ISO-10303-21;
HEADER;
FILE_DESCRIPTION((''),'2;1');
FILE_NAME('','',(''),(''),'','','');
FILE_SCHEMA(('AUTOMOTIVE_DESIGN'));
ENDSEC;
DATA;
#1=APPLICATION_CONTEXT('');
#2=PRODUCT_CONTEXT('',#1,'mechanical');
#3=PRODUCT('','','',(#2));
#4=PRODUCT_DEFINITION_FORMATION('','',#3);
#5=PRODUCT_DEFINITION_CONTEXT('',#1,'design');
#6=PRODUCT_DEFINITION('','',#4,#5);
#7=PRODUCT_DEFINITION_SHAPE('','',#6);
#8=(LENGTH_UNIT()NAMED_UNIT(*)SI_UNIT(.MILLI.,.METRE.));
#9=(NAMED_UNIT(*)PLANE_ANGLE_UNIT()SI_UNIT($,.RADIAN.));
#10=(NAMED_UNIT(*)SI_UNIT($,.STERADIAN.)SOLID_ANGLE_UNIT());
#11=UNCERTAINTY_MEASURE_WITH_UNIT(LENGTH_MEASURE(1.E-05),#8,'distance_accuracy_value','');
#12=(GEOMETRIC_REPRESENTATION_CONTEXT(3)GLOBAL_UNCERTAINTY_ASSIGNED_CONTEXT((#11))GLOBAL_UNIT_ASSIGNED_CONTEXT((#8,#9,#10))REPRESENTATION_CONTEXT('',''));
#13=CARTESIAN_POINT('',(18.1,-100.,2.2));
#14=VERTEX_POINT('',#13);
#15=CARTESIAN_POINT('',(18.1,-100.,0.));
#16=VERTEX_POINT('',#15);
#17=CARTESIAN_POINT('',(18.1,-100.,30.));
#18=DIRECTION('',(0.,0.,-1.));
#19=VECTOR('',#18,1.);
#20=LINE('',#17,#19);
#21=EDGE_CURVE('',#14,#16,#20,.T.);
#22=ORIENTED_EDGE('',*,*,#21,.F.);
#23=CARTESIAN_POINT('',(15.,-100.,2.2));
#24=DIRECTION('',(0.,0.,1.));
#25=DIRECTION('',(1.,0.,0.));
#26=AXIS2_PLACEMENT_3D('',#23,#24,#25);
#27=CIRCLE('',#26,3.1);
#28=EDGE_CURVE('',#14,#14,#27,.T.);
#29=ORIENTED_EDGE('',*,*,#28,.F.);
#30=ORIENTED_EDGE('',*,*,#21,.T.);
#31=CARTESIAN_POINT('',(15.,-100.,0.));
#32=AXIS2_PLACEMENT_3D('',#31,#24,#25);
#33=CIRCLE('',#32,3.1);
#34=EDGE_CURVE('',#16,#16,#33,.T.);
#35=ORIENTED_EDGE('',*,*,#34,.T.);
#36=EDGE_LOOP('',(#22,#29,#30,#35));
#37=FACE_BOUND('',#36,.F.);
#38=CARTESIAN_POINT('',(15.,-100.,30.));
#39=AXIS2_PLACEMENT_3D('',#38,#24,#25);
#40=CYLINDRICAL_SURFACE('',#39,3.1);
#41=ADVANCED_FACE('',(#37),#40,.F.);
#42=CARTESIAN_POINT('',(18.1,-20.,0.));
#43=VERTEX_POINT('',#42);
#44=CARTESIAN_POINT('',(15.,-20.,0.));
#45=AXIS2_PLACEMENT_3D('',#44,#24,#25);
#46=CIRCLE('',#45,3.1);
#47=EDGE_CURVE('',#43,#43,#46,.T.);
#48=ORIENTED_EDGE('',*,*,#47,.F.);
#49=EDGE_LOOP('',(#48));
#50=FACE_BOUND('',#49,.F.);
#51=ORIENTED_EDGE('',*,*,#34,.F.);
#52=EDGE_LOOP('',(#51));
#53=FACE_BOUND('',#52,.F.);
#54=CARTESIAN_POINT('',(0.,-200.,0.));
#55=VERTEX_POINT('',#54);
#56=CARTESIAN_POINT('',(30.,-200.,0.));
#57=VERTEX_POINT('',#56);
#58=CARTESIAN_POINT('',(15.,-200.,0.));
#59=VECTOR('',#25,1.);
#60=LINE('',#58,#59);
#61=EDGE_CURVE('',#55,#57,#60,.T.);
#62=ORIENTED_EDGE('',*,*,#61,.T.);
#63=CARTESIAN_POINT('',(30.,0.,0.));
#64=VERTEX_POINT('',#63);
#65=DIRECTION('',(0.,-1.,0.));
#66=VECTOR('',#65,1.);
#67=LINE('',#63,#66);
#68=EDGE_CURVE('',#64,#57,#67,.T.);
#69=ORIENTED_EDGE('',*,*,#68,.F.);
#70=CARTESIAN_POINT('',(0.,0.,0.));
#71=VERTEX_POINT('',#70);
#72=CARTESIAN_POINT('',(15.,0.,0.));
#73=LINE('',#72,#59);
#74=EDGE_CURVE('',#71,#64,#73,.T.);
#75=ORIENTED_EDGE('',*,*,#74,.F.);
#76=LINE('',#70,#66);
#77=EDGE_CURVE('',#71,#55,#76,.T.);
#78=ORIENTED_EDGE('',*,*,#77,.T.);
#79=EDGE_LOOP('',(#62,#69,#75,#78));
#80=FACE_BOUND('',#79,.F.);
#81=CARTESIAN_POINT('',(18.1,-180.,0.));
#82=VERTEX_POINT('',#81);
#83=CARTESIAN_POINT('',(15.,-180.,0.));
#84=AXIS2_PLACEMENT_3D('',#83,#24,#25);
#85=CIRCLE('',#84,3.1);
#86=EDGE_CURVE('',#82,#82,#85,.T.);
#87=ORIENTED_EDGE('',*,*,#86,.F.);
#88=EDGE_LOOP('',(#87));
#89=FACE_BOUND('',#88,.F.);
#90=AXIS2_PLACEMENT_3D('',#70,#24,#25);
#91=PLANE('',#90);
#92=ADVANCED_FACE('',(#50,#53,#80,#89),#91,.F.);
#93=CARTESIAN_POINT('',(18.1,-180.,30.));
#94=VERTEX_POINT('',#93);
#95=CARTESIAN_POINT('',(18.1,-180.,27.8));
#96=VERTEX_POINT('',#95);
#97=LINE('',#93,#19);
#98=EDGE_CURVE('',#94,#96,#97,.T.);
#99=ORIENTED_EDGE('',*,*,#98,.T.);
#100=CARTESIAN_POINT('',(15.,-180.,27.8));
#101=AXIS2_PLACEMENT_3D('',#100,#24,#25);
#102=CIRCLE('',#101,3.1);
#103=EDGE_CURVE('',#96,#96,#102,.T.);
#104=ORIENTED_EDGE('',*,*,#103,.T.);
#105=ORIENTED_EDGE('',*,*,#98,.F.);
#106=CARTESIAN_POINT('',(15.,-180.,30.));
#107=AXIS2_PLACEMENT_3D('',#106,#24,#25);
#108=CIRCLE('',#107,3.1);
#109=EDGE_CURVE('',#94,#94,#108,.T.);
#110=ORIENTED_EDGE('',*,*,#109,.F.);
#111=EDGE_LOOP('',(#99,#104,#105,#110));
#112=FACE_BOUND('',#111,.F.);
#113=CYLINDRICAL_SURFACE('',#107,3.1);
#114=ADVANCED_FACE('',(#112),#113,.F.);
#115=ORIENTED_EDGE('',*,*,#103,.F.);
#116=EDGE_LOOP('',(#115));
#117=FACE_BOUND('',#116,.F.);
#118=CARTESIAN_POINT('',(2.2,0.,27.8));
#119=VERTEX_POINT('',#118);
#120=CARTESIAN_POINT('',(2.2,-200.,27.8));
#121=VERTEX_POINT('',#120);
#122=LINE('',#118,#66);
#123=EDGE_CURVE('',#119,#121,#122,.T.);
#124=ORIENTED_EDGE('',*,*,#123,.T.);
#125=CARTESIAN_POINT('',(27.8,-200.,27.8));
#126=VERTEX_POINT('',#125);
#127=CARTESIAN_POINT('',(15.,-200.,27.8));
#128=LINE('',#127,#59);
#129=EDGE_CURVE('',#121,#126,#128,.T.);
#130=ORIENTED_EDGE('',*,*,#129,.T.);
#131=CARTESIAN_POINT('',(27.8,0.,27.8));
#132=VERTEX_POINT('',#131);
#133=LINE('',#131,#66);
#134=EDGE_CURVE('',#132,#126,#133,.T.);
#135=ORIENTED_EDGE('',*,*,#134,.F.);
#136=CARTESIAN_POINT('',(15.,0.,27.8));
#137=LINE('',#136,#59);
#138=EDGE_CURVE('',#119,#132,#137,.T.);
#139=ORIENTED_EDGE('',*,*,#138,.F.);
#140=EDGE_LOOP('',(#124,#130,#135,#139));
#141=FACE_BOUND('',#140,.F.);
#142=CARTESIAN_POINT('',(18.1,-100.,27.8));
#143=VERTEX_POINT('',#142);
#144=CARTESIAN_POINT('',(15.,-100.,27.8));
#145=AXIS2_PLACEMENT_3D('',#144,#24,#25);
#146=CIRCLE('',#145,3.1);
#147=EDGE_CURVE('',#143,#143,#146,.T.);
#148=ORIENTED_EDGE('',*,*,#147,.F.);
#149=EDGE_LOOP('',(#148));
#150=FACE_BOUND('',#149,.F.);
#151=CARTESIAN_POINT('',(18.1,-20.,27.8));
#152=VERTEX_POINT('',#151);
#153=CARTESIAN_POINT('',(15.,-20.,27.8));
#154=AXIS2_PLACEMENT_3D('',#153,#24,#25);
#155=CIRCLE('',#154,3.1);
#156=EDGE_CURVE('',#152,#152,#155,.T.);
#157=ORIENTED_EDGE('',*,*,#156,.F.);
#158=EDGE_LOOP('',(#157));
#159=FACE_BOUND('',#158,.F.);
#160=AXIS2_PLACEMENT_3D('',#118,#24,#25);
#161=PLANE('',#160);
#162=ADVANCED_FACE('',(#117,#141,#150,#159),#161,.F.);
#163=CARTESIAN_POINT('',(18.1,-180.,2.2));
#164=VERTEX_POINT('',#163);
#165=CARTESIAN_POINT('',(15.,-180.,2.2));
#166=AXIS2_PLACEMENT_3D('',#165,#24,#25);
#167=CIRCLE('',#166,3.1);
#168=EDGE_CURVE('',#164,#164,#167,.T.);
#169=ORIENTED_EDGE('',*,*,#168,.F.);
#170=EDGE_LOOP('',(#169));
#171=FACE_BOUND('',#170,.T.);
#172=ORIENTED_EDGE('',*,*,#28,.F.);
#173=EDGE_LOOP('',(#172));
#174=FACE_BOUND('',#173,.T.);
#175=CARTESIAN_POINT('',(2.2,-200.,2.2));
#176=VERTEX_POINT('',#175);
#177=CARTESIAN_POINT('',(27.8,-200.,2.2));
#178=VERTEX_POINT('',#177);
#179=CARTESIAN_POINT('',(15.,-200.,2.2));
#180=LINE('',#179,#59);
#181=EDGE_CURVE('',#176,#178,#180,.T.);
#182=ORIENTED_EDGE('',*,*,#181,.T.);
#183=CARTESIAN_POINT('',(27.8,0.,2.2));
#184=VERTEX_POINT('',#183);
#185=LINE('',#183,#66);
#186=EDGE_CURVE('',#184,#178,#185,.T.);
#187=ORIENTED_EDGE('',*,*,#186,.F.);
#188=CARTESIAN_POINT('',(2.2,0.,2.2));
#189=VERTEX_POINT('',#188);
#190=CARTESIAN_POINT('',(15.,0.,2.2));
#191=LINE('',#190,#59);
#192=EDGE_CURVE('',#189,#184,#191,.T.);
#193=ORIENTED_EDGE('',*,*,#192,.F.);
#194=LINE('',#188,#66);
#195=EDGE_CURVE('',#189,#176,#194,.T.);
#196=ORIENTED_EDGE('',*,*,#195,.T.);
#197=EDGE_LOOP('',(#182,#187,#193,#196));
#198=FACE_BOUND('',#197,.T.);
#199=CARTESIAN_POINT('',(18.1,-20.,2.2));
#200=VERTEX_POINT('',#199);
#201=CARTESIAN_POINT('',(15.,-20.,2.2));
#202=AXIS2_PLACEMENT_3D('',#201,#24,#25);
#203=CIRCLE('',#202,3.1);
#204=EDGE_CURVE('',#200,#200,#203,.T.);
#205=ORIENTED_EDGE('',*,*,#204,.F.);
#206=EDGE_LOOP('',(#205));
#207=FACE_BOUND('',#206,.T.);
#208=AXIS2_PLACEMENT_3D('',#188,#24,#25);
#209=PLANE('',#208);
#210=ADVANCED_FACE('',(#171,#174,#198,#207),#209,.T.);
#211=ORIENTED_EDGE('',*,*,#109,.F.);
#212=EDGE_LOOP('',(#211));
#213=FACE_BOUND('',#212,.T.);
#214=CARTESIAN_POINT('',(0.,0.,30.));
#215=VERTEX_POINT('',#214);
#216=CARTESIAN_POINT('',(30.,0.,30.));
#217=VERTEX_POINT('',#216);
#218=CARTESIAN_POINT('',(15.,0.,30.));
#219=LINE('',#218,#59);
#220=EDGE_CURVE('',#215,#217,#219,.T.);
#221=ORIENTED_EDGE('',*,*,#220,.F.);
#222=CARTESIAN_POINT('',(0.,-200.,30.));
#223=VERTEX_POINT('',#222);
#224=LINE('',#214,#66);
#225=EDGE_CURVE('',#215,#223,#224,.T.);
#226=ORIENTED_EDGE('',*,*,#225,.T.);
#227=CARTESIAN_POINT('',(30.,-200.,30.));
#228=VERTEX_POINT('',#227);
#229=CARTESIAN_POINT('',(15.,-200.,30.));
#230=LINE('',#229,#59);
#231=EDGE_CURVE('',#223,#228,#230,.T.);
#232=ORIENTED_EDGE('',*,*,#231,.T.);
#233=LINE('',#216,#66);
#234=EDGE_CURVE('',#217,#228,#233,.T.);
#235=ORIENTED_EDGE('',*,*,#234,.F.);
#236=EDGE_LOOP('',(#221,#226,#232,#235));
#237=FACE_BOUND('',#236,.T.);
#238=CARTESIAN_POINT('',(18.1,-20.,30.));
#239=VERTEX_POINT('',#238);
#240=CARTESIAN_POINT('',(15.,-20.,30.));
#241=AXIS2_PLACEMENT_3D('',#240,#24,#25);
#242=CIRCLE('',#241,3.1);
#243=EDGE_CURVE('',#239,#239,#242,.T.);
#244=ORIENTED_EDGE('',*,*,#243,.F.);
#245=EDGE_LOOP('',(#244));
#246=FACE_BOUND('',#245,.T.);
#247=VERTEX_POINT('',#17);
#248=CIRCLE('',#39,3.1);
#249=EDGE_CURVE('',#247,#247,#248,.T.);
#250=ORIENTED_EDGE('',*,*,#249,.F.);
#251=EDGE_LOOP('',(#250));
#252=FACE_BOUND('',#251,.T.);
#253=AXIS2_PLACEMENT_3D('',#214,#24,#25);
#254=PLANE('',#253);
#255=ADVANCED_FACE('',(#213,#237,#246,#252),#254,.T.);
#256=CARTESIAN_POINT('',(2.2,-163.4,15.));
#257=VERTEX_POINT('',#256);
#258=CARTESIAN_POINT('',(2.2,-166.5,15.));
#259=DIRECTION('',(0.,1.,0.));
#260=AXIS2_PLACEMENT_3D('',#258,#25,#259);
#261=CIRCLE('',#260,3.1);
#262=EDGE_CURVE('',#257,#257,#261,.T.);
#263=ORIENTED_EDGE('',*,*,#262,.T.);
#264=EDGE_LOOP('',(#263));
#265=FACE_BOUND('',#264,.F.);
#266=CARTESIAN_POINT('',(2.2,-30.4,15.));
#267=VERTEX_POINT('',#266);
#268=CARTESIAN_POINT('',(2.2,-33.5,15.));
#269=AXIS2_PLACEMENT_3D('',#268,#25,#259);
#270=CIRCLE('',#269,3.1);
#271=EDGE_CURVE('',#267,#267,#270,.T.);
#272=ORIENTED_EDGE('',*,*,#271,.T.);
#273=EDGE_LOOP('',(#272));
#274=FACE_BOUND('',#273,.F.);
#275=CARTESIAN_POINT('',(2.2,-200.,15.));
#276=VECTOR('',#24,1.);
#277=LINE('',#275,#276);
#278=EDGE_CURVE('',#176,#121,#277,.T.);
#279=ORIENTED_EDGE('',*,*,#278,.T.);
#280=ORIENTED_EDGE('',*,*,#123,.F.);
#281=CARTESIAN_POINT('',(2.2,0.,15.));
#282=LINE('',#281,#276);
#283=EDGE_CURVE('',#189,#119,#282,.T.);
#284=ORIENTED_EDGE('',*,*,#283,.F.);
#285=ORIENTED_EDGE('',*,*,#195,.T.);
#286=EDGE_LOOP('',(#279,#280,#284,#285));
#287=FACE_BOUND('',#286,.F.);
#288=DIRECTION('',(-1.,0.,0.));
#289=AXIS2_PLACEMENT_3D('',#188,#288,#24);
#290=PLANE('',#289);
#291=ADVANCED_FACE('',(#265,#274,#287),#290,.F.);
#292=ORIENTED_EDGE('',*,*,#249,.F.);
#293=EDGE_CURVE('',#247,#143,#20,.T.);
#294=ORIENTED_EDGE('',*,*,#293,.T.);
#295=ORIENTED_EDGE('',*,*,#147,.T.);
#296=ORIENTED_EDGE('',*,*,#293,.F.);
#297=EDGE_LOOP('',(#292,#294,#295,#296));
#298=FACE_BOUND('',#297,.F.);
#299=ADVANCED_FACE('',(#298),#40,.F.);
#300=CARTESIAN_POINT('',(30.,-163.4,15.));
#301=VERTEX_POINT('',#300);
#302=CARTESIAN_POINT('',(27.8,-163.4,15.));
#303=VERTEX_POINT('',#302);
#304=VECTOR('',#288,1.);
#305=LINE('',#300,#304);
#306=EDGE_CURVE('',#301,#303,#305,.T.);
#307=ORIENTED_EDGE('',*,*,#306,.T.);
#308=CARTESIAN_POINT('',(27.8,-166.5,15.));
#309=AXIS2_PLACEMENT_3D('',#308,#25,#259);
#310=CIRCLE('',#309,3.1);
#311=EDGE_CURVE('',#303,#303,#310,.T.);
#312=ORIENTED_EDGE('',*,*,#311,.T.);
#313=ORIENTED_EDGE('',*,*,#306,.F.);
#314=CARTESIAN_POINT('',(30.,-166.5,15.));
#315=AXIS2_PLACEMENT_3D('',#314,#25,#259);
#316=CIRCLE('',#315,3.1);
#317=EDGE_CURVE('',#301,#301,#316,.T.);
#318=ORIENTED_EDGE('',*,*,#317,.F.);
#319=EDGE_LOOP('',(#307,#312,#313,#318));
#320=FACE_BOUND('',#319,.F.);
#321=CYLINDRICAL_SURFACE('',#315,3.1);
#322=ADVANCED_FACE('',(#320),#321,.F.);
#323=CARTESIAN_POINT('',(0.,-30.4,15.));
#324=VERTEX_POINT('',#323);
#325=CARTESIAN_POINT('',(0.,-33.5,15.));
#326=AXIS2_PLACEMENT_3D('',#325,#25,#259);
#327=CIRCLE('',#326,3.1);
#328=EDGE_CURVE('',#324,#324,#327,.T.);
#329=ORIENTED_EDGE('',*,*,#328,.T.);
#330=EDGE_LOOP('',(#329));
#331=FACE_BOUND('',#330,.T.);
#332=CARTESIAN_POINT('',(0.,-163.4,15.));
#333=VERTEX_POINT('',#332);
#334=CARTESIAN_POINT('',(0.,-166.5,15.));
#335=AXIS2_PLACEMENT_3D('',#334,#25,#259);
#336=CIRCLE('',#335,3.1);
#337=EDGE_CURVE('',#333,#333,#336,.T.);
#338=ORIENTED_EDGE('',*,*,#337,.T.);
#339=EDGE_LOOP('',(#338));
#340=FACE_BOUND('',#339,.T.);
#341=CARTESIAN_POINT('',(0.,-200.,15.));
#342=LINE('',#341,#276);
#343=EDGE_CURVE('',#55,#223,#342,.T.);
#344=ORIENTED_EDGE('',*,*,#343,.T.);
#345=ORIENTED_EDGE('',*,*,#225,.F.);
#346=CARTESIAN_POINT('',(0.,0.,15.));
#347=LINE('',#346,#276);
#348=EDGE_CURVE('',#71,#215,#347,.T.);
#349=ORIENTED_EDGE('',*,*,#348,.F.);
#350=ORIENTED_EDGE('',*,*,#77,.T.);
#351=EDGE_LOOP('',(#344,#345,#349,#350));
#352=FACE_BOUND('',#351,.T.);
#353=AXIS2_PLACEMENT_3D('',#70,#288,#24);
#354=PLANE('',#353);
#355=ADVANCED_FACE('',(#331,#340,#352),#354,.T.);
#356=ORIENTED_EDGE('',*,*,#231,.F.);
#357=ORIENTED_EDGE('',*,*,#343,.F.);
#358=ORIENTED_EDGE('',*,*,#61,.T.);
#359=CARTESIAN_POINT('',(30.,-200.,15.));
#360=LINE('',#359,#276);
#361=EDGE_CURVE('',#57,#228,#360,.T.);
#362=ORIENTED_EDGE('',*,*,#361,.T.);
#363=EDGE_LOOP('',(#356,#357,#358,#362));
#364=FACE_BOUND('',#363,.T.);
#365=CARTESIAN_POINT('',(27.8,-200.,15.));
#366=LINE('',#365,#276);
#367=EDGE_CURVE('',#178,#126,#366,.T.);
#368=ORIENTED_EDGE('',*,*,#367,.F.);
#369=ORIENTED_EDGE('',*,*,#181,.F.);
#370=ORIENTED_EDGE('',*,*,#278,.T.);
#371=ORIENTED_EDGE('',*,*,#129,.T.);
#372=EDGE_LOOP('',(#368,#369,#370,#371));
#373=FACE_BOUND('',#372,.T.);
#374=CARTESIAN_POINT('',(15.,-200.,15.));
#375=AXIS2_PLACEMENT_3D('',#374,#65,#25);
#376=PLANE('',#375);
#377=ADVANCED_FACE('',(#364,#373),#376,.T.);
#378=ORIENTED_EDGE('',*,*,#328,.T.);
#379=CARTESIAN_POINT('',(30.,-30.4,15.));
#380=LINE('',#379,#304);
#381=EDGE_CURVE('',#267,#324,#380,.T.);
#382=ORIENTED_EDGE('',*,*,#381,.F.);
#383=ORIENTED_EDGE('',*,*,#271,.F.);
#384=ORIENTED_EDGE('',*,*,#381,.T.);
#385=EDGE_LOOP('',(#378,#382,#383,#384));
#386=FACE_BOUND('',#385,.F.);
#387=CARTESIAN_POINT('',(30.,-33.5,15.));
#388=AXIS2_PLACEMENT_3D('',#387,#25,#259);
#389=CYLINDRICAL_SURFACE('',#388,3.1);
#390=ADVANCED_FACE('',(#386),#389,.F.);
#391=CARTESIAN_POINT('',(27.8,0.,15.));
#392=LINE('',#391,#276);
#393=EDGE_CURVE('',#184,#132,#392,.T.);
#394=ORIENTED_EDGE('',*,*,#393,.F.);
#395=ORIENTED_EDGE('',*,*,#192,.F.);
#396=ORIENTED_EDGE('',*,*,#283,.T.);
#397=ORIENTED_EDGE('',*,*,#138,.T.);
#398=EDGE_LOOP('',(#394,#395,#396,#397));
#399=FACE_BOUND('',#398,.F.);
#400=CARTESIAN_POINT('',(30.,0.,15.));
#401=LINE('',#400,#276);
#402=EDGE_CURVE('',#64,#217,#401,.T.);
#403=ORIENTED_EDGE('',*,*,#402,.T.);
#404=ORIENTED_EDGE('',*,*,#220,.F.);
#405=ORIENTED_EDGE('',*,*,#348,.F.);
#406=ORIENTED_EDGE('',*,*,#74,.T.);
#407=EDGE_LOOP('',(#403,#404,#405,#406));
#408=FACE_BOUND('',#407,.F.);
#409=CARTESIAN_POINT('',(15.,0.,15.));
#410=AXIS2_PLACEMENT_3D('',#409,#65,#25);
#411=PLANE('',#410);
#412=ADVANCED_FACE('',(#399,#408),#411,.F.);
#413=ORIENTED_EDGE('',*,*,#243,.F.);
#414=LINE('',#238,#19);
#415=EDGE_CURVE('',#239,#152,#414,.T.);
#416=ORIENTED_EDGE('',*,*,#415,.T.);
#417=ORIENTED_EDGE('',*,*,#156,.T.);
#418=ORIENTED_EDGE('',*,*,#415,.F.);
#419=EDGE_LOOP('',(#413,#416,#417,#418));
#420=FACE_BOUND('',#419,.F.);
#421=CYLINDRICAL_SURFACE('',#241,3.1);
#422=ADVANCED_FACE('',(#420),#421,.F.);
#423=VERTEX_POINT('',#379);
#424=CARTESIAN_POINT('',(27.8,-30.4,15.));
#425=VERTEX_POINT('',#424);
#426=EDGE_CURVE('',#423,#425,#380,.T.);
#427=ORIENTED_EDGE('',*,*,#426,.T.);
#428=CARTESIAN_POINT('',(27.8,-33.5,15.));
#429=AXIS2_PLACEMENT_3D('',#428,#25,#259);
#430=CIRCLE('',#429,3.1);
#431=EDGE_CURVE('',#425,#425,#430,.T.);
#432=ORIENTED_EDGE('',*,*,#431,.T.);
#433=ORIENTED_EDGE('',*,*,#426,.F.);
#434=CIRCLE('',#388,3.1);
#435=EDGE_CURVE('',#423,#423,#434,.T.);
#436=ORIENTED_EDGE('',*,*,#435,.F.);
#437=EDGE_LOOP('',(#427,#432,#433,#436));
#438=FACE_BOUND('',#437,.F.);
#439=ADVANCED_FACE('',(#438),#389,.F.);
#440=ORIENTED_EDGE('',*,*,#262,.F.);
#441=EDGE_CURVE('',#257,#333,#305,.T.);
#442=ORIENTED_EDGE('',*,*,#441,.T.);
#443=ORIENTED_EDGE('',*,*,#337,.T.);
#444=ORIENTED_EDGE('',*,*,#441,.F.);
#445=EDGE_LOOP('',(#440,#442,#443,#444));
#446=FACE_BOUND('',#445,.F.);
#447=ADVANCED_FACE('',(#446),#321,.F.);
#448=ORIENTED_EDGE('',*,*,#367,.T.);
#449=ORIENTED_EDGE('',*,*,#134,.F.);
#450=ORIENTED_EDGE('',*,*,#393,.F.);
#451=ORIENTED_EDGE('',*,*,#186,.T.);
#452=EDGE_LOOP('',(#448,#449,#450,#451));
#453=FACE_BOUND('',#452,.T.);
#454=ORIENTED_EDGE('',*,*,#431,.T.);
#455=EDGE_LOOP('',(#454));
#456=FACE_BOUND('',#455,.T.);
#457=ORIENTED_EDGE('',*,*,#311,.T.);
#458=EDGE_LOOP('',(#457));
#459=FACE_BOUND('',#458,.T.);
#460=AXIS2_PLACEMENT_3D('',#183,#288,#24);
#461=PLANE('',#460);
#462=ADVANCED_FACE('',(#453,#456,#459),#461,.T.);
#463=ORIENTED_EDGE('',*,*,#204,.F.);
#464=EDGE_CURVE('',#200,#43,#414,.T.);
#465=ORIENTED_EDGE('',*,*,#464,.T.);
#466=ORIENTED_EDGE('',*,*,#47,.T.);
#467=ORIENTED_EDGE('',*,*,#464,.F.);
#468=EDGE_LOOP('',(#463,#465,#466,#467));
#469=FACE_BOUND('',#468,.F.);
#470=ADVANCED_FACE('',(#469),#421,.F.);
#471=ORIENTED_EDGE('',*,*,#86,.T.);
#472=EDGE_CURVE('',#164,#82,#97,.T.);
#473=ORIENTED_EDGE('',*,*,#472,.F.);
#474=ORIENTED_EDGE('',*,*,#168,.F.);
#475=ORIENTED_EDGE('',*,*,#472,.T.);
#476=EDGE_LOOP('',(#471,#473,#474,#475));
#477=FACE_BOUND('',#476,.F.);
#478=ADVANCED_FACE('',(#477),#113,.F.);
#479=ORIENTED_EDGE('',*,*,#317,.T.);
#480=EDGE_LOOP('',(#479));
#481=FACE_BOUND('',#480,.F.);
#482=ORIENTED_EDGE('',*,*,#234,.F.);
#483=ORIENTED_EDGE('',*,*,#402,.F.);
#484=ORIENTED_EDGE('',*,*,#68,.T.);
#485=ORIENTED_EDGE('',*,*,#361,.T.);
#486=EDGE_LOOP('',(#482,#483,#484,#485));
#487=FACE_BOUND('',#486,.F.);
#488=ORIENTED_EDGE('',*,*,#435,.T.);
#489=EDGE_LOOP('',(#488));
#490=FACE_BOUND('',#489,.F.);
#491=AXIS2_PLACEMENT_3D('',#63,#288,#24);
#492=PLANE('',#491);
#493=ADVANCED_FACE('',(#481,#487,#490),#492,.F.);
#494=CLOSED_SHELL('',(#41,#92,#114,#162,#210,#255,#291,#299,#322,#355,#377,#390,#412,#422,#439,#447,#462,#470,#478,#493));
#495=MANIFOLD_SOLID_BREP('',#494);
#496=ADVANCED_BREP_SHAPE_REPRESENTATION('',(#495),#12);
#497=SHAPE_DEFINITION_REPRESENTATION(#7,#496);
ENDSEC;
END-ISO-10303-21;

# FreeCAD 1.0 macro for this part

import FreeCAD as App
import Part
import Sketcher

V = App.Vector
Q = App.Units.Quantity


def add_polygon(sketch, points):
    """Adds a closed chain of lines whose ends are joined by coincident constraints."""
    first, n = sketch.GeometryCount, len(points)
    for a, b in zip(points, points[1:] + points[:1]):
        sketch.addGeometry(Part.LineSegment(App.Vector(*a, 0), App.Vector(*b, 0)), False)
    for i in range(n):
        sketch.addConstraint(Sketcher.Constraint("Coincident", first + i, 2, first + (i + 1) % n, 1))

doc = App.newDocument("Part")
body = doc.addObject("PartDesign::Body", "Body")

# Sketch on XZ plane
sketch1 = doc.addObject("Sketcher::SketchObject", "Sketch")
body.addObject(sketch1)
sketch1.AttachmentSupport = (doc.XZ_Plane, [""])
sketch1.MapMode = "FlatFace"
add_polygon(sketch1, [(0, 30), (0, 0), (30, 0), (30, 30)])  # lines 0-3
add_polygon(sketch1, [(27.8, 2.2), (2.2, 2.2), (2.2, 27.8), (27.8, 27.8)])  # lines 4-7
sketch1.addConstraint([
    Sketcher.Constraint("Vertical", 0),
    Sketcher.Constraint("Horizontal", 1),
    Sketcher.Constraint("Vertical", 2),
    Sketcher.Constraint("Horizontal", 3),
    Sketcher.Constraint("Horizontal", 4),
    Sketcher.Constraint("Vertical", 5),
    Sketcher.Constraint("Horizontal", 6),
    Sketcher.Constraint("Vertical", 7),
    Sketcher.Constraint("Coincident", 0, 2, -1, 1),
    Sketcher.Constraint("Equal", 3, 0),
    Sketcher.Constraint("Equal", 6, 5),
    Sketcher.Constraint("DistanceX", 1, 1, 1, 2, Q("30 mm")),
    Sketcher.Constraint("DistanceX", 4, 2, 4, 1, Q("25.6 mm")),
    Sketcher.Constraint("DistanceX", -1, 1, 4, 2, Q("2.2 mm")),
    Sketcher.Constraint("DistanceY", -1, 1, 4, 2, Q("2.2 mm")),
])
pad1 = doc.addObject("PartDesign::Pad", "Pad")
body.addObject(pad1)
pad1.Profile = sketch1
pad1.Length = 200

# Sketch on XY plane
sketch2 = doc.addObject("Sketcher::SketchObject", "Sketch001")
body.addObject(sketch2)
sketch2.AttachmentSupport = (doc.XY_Plane, [""])
sketch2.MapMode = "FlatFace"
sketch2.AttachmentOffset = App.Placement(V(0, 0, 30), App.Rotation())
sketch2.addGeometry([
    Part.Circle(V(15, -20, 0), V(0, 0, 1), 3.1),
    Part.Circle(V(15, -100, 0), V(0, 0, 1), 3.1),
    Part.Circle(V(15, -180, 0), V(0, 0, 1), 3.1),
], False)
sketch2.addConstraint([
    Sketcher.Constraint("Equal", 0, 1),
    Sketcher.Constraint("Equal", 1, 2),
    Sketcher.Constraint("Vertical", 0, 3, 1, 3),
    Sketcher.Constraint("Vertical", 1, 3, 2, 3),
    Sketcher.Constraint("Diameter", 0, Q("6.2 mm")),
    Sketcher.Constraint("DistanceX", -1, 1, 0, 3, Q("15 mm")),
    Sketcher.Constraint("DistanceY", 0, 3, -1, 1, Q("20 mm")),
    Sketcher.Constraint("DistanceY", 1, 3, -1, 1, Q("100 mm")),
    Sketcher.Constraint("DistanceY", 2, 3, -1, 1, Q("180 mm")),
])
pocket1 = doc.addObject("PartDesign::Pocket", "Pocket")
body.addObject(pocket1)
pocket1.Profile = sketch2
pocket1.Length = 35

# Sketch on YZ plane
sketch3 = doc.addObject("Sketcher::SketchObject", "Sketch002")
body.addObject(sketch3)
sketch3.AttachmentSupport = (doc.YZ_Plane, [""])
sketch3.MapMode = "FlatFace"
sketch3.AttachmentOffset = App.Placement(V(0, 0, 30), App.Rotation())
sketch3.addGeometry([
    Part.Circle(V(-166.5, 15, 0), V(0, 0, 1), 3.1),
    Part.Circle(V(-33.5, 15, 0), V(0, 0, 1), 3.1),
], False)
sketch3.addConstraint([
    Sketcher.Constraint("Equal", 0, 1),
    Sketcher.Constraint("Horizontal", 0, 3, 1, 3),
    Sketcher.Constraint("Diameter", 0, Q("6.2 mm")),
    Sketcher.Constraint("DistanceY", -1, 1, 0, 3, Q("15 mm")),
    Sketcher.Constraint("DistanceX", 0, 3, 1, 3, Q("133 mm")),
    Sketcher.Constraint("DistanceX", 0, 3, -1, 1, Q("166.5 mm")),
])
pocket2 = doc.addObject("PartDesign::Pocket", "Pocket001")
body.addObject(pocket2)
pocket2.Profile = sketch3
pocket2.Length = 35

doc.recompute()
